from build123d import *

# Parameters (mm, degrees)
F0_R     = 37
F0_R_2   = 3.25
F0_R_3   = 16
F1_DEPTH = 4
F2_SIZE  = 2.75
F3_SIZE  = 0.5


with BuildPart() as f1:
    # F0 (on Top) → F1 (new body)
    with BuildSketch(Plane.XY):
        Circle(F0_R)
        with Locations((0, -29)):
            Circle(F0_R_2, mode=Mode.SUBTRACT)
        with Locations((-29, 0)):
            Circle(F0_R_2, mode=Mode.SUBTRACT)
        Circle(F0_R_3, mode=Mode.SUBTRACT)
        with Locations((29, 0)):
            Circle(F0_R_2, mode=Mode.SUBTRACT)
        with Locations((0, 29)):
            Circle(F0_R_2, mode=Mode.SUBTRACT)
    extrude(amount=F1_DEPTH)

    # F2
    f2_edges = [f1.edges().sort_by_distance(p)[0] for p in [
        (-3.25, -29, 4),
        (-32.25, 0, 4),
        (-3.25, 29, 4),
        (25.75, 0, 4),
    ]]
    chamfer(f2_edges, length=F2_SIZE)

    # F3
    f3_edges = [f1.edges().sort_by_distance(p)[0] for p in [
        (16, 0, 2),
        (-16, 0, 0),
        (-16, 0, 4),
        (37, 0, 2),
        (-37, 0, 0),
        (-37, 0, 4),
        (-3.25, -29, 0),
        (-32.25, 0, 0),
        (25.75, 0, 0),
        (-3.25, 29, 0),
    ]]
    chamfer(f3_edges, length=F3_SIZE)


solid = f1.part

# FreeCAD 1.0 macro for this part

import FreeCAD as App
import Part
import Sketcher
from FreeCAD import Vector
Q = App.Units.Quantity


def edges_at(feature, points):
    """Names of the edges that pass closest to the given points."""
    edges = feature.Shape.Edges
    near = lambda p: min(range(len(edges)), key=lambda i: edges[i].distToShape(Part.Vertex(*p))[0])
    return sorted({f"Edge{near(p) + 1}" for p in points})

doc = App.newDocument("Part")
body = doc.addObject("PartDesign::Body", "Body")

# Sketch on XY plane
sketch1 = body.newObject("Sketcher::SketchObject", "Sketch")
sketch1.AttachmentSupport = (doc.getObject("XY_Plane"), [""])
sketch1.MapMode = "FlatFace"
sketch1.addGeometry(Part.Circle(Vector(0, 0, 0), Vector(0, 0, 1), 37), False)
sketch1.addGeometry(Part.Circle(Vector(0, -29, 0), Vector(0, 0, 1), 3.25), False)
sketch1.addGeometry(Part.Circle(Vector(-29, 0, 0), Vector(0, 0, 1), 3.25), False)
sketch1.addGeometry(Part.Circle(Vector(0, 0, 0), Vector(0, 0, 1), 16), False)
sketch1.addGeometry(Part.Circle(Vector(29, 0, 0), Vector(0, 0, 1), 3.25), False)
sketch1.addGeometry(Part.Circle(Vector(0, 29, 0), Vector(0, 0, 1), 3.25), False)
sketch1.addConstraint(Sketcher.Constraint("Coincident", 0, 3, -1, 1))
sketch1.addConstraint(Sketcher.Constraint("Coincident", 3, 3, -1, 1))
sketch1.addConstraint(Sketcher.Constraint("Equal", 1, 2))
sketch1.addConstraint(Sketcher.Constraint("Equal", 2, 4))
sketch1.addConstraint(Sketcher.Constraint("Equal", 4, 5))
sketch1.addConstraint(Sketcher.Constraint("Symmetric", 2, 3, 4, 3, -1, 1))
sketch1.addConstraint(Sketcher.Constraint("Symmetric", 1, 3, 5, 3, -1, 1))
sketch1.addConstraint(Sketcher.Constraint("PointOnObject", 1, 3, -2))
sketch1.addConstraint(Sketcher.Constraint("PointOnObject", 2, 3, -1))
sketch1.addConstraint(Sketcher.Constraint("Diameter", 0, Q("74 mm")))
sketch1.addConstraint(Sketcher.Constraint("Diameter", 3, Q("32 mm")))
sketch1.addConstraint(Sketcher.Constraint("Diameter", 1, Q("6.5 mm")))
sketch1.addConstraint(Sketcher.Constraint("DistanceY", 1, 3, -1, 1, Q("29 mm")))
sketch1.addConstraint(Sketcher.Constraint("DistanceX", 2, 3, -1, 1, Q("29 mm")))
pad1 = body.newObject("PartDesign::Pad", "Pad")
pad1.Profile = sketch1
pad1.Length = 4
doc.recompute()

chamfer = body.newObject("PartDesign::Chamfer", "Chamfer")
chamfer.Base = (pad1, edges_at(pad1, [
    (-3.25, -29, 4),
    (-32.25, 0, 4),
    (-3.25, 29, 4),
    (25.75, 0, 4),
]))
chamfer.Size = 2.75
doc.recompute()

chamfer2 = body.newObject("PartDesign::Chamfer", "Chamfer001")
chamfer2.Base = (chamfer, edges_at(chamfer, [
    (16, 0, 2),
    (-16, 0, 0),
    (-16, 0, 4),
    (37, 0, 2),
    (-37, 0, 0),
    (-37, 0, 4),
    (-3.25, -29, 0),
    (-32.25, 0, 0),
    (25.75, 0, 0),
    (-3.25, 29, 0),
]))
chamfer2.Size = 0.5

doc.recompute()
